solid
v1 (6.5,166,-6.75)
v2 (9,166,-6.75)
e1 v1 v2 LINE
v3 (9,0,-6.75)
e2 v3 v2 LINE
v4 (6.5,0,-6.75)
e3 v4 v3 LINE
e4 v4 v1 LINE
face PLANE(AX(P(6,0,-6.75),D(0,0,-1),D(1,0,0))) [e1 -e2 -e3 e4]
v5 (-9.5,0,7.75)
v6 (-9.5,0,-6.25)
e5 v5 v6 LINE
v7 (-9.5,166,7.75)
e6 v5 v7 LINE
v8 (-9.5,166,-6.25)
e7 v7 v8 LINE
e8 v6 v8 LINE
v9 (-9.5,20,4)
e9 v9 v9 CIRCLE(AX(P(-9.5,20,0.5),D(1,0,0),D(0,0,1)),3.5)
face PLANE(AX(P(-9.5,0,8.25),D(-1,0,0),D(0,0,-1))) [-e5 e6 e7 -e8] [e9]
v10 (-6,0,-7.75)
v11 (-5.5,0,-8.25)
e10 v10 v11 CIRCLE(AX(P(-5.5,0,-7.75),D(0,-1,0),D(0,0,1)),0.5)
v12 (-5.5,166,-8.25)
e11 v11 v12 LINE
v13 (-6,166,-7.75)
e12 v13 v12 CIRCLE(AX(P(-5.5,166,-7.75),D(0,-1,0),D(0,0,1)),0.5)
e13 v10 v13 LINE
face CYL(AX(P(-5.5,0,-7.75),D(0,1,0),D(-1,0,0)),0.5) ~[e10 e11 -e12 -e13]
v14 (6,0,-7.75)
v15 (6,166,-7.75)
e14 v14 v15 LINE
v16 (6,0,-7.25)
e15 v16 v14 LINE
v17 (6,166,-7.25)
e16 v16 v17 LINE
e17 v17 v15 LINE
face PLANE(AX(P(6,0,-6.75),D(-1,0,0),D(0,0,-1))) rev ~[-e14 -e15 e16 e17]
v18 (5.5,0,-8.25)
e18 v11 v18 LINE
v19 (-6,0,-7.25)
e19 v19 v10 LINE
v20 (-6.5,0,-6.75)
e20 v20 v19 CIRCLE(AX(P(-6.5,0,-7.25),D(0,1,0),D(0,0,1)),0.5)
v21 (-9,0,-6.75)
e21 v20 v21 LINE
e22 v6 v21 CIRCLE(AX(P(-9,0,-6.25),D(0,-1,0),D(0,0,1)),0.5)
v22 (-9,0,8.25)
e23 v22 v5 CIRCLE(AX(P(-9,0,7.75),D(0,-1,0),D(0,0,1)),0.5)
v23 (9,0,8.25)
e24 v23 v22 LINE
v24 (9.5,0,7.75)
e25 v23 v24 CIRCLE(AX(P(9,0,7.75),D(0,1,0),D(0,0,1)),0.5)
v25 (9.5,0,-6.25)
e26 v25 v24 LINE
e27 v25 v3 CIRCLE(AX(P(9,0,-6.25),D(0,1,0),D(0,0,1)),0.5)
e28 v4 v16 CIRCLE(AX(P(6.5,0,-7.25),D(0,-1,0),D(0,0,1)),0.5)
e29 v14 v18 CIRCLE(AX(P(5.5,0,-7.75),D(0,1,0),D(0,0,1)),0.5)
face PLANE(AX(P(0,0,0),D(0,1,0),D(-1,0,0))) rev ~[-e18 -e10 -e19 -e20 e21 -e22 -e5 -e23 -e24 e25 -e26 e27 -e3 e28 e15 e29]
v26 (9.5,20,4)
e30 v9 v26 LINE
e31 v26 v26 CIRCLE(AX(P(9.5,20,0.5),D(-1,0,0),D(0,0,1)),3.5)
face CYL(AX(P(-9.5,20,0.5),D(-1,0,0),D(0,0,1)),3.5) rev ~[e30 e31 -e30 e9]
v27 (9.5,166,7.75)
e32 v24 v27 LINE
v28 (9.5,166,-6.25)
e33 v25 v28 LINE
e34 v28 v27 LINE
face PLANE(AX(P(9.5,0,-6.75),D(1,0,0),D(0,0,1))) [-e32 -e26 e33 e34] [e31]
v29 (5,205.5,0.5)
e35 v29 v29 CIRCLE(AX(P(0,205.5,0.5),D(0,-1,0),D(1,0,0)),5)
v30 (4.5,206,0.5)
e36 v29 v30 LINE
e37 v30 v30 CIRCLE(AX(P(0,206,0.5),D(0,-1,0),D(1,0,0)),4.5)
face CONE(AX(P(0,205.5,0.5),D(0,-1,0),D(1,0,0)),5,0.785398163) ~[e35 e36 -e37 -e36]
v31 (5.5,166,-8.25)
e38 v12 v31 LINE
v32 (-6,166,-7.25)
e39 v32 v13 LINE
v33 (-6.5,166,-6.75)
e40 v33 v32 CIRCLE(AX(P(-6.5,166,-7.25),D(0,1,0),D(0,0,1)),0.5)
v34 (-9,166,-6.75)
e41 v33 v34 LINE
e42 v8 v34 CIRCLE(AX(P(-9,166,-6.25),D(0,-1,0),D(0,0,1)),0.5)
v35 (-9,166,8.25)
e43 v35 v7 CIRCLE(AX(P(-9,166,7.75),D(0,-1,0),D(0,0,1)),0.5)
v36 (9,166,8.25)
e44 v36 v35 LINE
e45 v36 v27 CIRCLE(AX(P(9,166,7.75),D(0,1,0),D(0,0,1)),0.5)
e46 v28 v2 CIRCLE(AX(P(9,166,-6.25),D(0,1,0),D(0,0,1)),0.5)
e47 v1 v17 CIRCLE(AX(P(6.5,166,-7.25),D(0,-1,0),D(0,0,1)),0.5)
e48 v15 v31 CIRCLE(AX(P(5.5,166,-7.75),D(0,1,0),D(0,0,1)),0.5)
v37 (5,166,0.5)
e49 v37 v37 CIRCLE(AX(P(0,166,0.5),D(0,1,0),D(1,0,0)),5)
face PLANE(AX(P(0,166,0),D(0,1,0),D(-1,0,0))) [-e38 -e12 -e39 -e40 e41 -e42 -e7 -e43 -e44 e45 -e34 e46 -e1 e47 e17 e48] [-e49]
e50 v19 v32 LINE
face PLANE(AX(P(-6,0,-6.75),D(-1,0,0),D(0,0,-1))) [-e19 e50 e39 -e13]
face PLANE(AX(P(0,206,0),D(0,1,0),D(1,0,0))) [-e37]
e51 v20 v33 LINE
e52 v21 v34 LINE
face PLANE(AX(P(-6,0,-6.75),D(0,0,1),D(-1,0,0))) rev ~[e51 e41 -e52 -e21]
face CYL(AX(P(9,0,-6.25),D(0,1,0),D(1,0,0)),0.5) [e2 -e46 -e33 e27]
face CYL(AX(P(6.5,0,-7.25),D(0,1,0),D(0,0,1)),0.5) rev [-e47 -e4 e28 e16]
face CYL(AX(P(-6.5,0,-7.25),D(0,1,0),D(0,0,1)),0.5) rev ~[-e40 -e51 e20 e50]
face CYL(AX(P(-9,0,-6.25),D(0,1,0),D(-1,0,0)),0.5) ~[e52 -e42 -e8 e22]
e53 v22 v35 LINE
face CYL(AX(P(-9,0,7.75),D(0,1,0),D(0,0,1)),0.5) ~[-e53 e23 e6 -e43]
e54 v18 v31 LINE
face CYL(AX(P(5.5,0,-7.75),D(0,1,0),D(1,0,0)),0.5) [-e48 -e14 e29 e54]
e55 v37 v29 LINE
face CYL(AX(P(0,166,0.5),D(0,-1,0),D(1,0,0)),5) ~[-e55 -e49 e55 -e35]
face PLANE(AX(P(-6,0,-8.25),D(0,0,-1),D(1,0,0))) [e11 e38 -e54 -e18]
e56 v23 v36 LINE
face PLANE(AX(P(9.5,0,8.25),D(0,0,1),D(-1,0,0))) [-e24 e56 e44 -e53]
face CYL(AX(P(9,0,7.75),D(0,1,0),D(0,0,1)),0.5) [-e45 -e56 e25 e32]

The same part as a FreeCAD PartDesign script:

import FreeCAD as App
import Part
import Sketcher
from FreeCAD import Vector


def edges_at(feature, points):
    """Names of the edges that pass closest to the given points."""
    edges = feature.Shape.Edges
    near = lambda p: min(range(len(edges)), key=lambda i: edges[i].distToShape(Part.Vertex(*p))[0])
    return sorted({f"Edge{near(p) + 1}" for p in points})


def add_polygon(sketch, points):
    """Adds a closed chain of lines whose ends are joined by coincident constraints."""
    first, n = sketch.GeometryCount, len(points)
    for a, b in zip(points, points[1:] + points[:1]):
        sketch.addGeometry(Part.LineSegment(App.Vector(*a, 0), App.Vector(*b, 0)), False)
    for i in range(n):
        sketch.addConstraint(Sketcher.Constraint("Coincident", first + i, 2, first + (i + 1) % n, 1))

doc = App.newDocument("Part")
params = doc.addObject("Spreadsheet::Sheet", "Params")
for row, (alias, value) in enumerate([
    ("sketch1_width", "19 mm"),
    ("sketch1_width2", "12 mm"),
    ("sketch1_height", "1.5 mm"),
    ("pad1_length", "166 mm"),
    ("sketch2_diameter", "10 mm"),
    ("pad2_length", "40 mm"),
    ("chamfer_size", "0.5 mm"),
    ("fillet_radius", "0.5 mm"),
    ("sketch3_diameter", "7 mm"),
], start=1):
    params.set(f"A{row}", alias)
    params.set(f"B{row}", "=" + value)
    params.setAlias(f"B{row}", alias)

body = doc.addObject("PartDesign::Body", "Body")

sketch1 = body.newObject("Sketcher::SketchObject", "Sketch")
sketch1.AttachmentSupport = (doc.getObject("XZ_Plane"), [""])
sketch1.MapMode = "FlatFace"
add_polygon(sketch1, [(-9.5, 8.2), (9.5, 8.2), (9.5, -6.8), (6, -6.8), (6, -8.2), (-6, -8.2), (-6, -6.8), (-9.5, -6.8)])
sketch1.addConstraint(Sketcher.Constraint("Horizontal", 0))
sketch1.addConstraint(Sketcher.Constraint("Vertical", 1))
sketch1.addConstraint(Sketcher.Constraint("Horizontal", 2))
sketch1.addConstraint(Sketcher.Constraint("Vertical", 3))
sketch1.addConstraint(Sketcher.Constraint("Horizontal", 4))
sketch1.addConstraint(Sketcher.Constraint("Vertical", 5))
sketch1.addConstraint(Sketcher.Constraint("Horizontal", 6))
sketch1.addConstraint(Sketcher.Constraint("Vertical", 7))
sketch1.addConstraint(Sketcher.Constraint("Symmetric", 2, 2, 5, 2, -2))
sketch1.addConstraint(Sketcher.Constraint("Equal", 2, 6))
sketch1.addConstraint(Sketcher.Constraint("DistanceX", 0, 1, 0, 2, 19.0))
sketch1.addConstraint(Sketcher.Constraint("DistanceX", 4, 2, 4, 1, 12.0))
sketch1.addConstraint(Sketcher.Constraint("DistanceY", 3, 2, 3, 1, 1.5))
sketch1.addConstraint(Sketcher.Constraint("DistanceY", 3, 2, 0, 2, 16.5))
sketch1.addConstraint(Sketcher.Constraint("DistanceY", -1, 1, 0, 2, 8.25))
sketch1.setExpression("Constraints[18]", "Params.sketch1_width")
sketch1.setExpression("Constraints[19]", "Params.sketch1_width2")
sketch1.setExpression("Constraints[20]", "Params.sketch1_height")
pad1 = body.newObject("PartDesign::Pad", "Pad")
pad1.Profile = sketch1
pad1.setExpression("Length", "Params.pad1_length")
pad1.Reversed = True

sketch2 = body.newObject("Sketcher::SketchObject", "Sketch001")
sketch2.AttachmentSupport = (doc.getObject("XZ_Plane"), [""])
sketch2.MapMode = "FlatFace"
sketch2.AttachmentOffset = App.Placement(Vector(0, 0, -166), App.Rotation())
sketch2.addGeometry(Part.Circle(Vector(0, 0, 0), Vector(0, 0, 1), 5), False)
sketch2.addConstraint(Sketcher.Constraint("PointOnObject", 0, 3, -2))
sketch2.addConstraint(Sketcher.Constraint("Diameter", 0, 10.0))
sketch2.addConstraint(Sketcher.Constraint("DistanceY", -1, 1, 0, 3, 0.5))
sketch2.setExpression("Constraints[1]", "Params.sketch2_diameter")
pad2 = body.newObject("PartDesign::Pad", "Pad001")
pad2.Profile = sketch2
pad2.setExpression("Length", "Params.pad2_length")
pad2.Reversed = True
doc.recompute()

chamfer = body.newObject("PartDesign::Chamfer", "Chamfer")
chamfer.Base = (pad2, edges_at(pad2, [(-5, 206, 0.5)]))
chamfer.setExpression("Size", "Params.chamfer_size")
doc.recompute()

fillet = body.newObject("PartDesign::Fillet", "Fillet")
fillet.Base = (chamfer, edges_at(chamfer, [
    (9.5, 83, -6.75),
    (6, 83, -8.25),
    (9.5, 83, 8.25),
    (-9.5, 83, 8.25),
    (-9.5, 83, -6.75),
    (-6, 83, -6.75),
    (-6, 83, -8.25),
    (6, 83, -6.75),
]))
fillet.setExpression("Radius", "Params.fillet_radius")

sketch3 = body.newObject("Sketcher::SketchObject", "Sketch002")
sketch3.AttachmentSupport = (doc.getObject("YZ_Plane"), [""])
sketch3.MapMode = "FlatFace"
sketch3.AttachmentOffset = App.Placement(Vector(0, 0, -9.5), App.Rotation())
sketch3.addGeometry(Part.Circle(Vector(20, 0.5, 0), Vector(0, 0, 1), 3.5), False)
sketch3.addConstraint(Sketcher.Constraint("Diameter", 0, 7.0))
sketch3.addConstraint(Sketcher.Constraint("DistanceX", -1, 1, 0, 3, 20.0))
sketch3.addConstraint(Sketcher.Constraint("DistanceY", -1, 1, 0, 3, 0.5))
sketch3.setExpression("Constraints[0]", "Params.sketch3_diameter")
pocket1 = body.newObject("PartDesign::Pocket", "Pocket")
pocket1.Profile = sketch3
pocket1.Type = "ThroughAll"
pocket1.Reversed = True

doc.recompute()
